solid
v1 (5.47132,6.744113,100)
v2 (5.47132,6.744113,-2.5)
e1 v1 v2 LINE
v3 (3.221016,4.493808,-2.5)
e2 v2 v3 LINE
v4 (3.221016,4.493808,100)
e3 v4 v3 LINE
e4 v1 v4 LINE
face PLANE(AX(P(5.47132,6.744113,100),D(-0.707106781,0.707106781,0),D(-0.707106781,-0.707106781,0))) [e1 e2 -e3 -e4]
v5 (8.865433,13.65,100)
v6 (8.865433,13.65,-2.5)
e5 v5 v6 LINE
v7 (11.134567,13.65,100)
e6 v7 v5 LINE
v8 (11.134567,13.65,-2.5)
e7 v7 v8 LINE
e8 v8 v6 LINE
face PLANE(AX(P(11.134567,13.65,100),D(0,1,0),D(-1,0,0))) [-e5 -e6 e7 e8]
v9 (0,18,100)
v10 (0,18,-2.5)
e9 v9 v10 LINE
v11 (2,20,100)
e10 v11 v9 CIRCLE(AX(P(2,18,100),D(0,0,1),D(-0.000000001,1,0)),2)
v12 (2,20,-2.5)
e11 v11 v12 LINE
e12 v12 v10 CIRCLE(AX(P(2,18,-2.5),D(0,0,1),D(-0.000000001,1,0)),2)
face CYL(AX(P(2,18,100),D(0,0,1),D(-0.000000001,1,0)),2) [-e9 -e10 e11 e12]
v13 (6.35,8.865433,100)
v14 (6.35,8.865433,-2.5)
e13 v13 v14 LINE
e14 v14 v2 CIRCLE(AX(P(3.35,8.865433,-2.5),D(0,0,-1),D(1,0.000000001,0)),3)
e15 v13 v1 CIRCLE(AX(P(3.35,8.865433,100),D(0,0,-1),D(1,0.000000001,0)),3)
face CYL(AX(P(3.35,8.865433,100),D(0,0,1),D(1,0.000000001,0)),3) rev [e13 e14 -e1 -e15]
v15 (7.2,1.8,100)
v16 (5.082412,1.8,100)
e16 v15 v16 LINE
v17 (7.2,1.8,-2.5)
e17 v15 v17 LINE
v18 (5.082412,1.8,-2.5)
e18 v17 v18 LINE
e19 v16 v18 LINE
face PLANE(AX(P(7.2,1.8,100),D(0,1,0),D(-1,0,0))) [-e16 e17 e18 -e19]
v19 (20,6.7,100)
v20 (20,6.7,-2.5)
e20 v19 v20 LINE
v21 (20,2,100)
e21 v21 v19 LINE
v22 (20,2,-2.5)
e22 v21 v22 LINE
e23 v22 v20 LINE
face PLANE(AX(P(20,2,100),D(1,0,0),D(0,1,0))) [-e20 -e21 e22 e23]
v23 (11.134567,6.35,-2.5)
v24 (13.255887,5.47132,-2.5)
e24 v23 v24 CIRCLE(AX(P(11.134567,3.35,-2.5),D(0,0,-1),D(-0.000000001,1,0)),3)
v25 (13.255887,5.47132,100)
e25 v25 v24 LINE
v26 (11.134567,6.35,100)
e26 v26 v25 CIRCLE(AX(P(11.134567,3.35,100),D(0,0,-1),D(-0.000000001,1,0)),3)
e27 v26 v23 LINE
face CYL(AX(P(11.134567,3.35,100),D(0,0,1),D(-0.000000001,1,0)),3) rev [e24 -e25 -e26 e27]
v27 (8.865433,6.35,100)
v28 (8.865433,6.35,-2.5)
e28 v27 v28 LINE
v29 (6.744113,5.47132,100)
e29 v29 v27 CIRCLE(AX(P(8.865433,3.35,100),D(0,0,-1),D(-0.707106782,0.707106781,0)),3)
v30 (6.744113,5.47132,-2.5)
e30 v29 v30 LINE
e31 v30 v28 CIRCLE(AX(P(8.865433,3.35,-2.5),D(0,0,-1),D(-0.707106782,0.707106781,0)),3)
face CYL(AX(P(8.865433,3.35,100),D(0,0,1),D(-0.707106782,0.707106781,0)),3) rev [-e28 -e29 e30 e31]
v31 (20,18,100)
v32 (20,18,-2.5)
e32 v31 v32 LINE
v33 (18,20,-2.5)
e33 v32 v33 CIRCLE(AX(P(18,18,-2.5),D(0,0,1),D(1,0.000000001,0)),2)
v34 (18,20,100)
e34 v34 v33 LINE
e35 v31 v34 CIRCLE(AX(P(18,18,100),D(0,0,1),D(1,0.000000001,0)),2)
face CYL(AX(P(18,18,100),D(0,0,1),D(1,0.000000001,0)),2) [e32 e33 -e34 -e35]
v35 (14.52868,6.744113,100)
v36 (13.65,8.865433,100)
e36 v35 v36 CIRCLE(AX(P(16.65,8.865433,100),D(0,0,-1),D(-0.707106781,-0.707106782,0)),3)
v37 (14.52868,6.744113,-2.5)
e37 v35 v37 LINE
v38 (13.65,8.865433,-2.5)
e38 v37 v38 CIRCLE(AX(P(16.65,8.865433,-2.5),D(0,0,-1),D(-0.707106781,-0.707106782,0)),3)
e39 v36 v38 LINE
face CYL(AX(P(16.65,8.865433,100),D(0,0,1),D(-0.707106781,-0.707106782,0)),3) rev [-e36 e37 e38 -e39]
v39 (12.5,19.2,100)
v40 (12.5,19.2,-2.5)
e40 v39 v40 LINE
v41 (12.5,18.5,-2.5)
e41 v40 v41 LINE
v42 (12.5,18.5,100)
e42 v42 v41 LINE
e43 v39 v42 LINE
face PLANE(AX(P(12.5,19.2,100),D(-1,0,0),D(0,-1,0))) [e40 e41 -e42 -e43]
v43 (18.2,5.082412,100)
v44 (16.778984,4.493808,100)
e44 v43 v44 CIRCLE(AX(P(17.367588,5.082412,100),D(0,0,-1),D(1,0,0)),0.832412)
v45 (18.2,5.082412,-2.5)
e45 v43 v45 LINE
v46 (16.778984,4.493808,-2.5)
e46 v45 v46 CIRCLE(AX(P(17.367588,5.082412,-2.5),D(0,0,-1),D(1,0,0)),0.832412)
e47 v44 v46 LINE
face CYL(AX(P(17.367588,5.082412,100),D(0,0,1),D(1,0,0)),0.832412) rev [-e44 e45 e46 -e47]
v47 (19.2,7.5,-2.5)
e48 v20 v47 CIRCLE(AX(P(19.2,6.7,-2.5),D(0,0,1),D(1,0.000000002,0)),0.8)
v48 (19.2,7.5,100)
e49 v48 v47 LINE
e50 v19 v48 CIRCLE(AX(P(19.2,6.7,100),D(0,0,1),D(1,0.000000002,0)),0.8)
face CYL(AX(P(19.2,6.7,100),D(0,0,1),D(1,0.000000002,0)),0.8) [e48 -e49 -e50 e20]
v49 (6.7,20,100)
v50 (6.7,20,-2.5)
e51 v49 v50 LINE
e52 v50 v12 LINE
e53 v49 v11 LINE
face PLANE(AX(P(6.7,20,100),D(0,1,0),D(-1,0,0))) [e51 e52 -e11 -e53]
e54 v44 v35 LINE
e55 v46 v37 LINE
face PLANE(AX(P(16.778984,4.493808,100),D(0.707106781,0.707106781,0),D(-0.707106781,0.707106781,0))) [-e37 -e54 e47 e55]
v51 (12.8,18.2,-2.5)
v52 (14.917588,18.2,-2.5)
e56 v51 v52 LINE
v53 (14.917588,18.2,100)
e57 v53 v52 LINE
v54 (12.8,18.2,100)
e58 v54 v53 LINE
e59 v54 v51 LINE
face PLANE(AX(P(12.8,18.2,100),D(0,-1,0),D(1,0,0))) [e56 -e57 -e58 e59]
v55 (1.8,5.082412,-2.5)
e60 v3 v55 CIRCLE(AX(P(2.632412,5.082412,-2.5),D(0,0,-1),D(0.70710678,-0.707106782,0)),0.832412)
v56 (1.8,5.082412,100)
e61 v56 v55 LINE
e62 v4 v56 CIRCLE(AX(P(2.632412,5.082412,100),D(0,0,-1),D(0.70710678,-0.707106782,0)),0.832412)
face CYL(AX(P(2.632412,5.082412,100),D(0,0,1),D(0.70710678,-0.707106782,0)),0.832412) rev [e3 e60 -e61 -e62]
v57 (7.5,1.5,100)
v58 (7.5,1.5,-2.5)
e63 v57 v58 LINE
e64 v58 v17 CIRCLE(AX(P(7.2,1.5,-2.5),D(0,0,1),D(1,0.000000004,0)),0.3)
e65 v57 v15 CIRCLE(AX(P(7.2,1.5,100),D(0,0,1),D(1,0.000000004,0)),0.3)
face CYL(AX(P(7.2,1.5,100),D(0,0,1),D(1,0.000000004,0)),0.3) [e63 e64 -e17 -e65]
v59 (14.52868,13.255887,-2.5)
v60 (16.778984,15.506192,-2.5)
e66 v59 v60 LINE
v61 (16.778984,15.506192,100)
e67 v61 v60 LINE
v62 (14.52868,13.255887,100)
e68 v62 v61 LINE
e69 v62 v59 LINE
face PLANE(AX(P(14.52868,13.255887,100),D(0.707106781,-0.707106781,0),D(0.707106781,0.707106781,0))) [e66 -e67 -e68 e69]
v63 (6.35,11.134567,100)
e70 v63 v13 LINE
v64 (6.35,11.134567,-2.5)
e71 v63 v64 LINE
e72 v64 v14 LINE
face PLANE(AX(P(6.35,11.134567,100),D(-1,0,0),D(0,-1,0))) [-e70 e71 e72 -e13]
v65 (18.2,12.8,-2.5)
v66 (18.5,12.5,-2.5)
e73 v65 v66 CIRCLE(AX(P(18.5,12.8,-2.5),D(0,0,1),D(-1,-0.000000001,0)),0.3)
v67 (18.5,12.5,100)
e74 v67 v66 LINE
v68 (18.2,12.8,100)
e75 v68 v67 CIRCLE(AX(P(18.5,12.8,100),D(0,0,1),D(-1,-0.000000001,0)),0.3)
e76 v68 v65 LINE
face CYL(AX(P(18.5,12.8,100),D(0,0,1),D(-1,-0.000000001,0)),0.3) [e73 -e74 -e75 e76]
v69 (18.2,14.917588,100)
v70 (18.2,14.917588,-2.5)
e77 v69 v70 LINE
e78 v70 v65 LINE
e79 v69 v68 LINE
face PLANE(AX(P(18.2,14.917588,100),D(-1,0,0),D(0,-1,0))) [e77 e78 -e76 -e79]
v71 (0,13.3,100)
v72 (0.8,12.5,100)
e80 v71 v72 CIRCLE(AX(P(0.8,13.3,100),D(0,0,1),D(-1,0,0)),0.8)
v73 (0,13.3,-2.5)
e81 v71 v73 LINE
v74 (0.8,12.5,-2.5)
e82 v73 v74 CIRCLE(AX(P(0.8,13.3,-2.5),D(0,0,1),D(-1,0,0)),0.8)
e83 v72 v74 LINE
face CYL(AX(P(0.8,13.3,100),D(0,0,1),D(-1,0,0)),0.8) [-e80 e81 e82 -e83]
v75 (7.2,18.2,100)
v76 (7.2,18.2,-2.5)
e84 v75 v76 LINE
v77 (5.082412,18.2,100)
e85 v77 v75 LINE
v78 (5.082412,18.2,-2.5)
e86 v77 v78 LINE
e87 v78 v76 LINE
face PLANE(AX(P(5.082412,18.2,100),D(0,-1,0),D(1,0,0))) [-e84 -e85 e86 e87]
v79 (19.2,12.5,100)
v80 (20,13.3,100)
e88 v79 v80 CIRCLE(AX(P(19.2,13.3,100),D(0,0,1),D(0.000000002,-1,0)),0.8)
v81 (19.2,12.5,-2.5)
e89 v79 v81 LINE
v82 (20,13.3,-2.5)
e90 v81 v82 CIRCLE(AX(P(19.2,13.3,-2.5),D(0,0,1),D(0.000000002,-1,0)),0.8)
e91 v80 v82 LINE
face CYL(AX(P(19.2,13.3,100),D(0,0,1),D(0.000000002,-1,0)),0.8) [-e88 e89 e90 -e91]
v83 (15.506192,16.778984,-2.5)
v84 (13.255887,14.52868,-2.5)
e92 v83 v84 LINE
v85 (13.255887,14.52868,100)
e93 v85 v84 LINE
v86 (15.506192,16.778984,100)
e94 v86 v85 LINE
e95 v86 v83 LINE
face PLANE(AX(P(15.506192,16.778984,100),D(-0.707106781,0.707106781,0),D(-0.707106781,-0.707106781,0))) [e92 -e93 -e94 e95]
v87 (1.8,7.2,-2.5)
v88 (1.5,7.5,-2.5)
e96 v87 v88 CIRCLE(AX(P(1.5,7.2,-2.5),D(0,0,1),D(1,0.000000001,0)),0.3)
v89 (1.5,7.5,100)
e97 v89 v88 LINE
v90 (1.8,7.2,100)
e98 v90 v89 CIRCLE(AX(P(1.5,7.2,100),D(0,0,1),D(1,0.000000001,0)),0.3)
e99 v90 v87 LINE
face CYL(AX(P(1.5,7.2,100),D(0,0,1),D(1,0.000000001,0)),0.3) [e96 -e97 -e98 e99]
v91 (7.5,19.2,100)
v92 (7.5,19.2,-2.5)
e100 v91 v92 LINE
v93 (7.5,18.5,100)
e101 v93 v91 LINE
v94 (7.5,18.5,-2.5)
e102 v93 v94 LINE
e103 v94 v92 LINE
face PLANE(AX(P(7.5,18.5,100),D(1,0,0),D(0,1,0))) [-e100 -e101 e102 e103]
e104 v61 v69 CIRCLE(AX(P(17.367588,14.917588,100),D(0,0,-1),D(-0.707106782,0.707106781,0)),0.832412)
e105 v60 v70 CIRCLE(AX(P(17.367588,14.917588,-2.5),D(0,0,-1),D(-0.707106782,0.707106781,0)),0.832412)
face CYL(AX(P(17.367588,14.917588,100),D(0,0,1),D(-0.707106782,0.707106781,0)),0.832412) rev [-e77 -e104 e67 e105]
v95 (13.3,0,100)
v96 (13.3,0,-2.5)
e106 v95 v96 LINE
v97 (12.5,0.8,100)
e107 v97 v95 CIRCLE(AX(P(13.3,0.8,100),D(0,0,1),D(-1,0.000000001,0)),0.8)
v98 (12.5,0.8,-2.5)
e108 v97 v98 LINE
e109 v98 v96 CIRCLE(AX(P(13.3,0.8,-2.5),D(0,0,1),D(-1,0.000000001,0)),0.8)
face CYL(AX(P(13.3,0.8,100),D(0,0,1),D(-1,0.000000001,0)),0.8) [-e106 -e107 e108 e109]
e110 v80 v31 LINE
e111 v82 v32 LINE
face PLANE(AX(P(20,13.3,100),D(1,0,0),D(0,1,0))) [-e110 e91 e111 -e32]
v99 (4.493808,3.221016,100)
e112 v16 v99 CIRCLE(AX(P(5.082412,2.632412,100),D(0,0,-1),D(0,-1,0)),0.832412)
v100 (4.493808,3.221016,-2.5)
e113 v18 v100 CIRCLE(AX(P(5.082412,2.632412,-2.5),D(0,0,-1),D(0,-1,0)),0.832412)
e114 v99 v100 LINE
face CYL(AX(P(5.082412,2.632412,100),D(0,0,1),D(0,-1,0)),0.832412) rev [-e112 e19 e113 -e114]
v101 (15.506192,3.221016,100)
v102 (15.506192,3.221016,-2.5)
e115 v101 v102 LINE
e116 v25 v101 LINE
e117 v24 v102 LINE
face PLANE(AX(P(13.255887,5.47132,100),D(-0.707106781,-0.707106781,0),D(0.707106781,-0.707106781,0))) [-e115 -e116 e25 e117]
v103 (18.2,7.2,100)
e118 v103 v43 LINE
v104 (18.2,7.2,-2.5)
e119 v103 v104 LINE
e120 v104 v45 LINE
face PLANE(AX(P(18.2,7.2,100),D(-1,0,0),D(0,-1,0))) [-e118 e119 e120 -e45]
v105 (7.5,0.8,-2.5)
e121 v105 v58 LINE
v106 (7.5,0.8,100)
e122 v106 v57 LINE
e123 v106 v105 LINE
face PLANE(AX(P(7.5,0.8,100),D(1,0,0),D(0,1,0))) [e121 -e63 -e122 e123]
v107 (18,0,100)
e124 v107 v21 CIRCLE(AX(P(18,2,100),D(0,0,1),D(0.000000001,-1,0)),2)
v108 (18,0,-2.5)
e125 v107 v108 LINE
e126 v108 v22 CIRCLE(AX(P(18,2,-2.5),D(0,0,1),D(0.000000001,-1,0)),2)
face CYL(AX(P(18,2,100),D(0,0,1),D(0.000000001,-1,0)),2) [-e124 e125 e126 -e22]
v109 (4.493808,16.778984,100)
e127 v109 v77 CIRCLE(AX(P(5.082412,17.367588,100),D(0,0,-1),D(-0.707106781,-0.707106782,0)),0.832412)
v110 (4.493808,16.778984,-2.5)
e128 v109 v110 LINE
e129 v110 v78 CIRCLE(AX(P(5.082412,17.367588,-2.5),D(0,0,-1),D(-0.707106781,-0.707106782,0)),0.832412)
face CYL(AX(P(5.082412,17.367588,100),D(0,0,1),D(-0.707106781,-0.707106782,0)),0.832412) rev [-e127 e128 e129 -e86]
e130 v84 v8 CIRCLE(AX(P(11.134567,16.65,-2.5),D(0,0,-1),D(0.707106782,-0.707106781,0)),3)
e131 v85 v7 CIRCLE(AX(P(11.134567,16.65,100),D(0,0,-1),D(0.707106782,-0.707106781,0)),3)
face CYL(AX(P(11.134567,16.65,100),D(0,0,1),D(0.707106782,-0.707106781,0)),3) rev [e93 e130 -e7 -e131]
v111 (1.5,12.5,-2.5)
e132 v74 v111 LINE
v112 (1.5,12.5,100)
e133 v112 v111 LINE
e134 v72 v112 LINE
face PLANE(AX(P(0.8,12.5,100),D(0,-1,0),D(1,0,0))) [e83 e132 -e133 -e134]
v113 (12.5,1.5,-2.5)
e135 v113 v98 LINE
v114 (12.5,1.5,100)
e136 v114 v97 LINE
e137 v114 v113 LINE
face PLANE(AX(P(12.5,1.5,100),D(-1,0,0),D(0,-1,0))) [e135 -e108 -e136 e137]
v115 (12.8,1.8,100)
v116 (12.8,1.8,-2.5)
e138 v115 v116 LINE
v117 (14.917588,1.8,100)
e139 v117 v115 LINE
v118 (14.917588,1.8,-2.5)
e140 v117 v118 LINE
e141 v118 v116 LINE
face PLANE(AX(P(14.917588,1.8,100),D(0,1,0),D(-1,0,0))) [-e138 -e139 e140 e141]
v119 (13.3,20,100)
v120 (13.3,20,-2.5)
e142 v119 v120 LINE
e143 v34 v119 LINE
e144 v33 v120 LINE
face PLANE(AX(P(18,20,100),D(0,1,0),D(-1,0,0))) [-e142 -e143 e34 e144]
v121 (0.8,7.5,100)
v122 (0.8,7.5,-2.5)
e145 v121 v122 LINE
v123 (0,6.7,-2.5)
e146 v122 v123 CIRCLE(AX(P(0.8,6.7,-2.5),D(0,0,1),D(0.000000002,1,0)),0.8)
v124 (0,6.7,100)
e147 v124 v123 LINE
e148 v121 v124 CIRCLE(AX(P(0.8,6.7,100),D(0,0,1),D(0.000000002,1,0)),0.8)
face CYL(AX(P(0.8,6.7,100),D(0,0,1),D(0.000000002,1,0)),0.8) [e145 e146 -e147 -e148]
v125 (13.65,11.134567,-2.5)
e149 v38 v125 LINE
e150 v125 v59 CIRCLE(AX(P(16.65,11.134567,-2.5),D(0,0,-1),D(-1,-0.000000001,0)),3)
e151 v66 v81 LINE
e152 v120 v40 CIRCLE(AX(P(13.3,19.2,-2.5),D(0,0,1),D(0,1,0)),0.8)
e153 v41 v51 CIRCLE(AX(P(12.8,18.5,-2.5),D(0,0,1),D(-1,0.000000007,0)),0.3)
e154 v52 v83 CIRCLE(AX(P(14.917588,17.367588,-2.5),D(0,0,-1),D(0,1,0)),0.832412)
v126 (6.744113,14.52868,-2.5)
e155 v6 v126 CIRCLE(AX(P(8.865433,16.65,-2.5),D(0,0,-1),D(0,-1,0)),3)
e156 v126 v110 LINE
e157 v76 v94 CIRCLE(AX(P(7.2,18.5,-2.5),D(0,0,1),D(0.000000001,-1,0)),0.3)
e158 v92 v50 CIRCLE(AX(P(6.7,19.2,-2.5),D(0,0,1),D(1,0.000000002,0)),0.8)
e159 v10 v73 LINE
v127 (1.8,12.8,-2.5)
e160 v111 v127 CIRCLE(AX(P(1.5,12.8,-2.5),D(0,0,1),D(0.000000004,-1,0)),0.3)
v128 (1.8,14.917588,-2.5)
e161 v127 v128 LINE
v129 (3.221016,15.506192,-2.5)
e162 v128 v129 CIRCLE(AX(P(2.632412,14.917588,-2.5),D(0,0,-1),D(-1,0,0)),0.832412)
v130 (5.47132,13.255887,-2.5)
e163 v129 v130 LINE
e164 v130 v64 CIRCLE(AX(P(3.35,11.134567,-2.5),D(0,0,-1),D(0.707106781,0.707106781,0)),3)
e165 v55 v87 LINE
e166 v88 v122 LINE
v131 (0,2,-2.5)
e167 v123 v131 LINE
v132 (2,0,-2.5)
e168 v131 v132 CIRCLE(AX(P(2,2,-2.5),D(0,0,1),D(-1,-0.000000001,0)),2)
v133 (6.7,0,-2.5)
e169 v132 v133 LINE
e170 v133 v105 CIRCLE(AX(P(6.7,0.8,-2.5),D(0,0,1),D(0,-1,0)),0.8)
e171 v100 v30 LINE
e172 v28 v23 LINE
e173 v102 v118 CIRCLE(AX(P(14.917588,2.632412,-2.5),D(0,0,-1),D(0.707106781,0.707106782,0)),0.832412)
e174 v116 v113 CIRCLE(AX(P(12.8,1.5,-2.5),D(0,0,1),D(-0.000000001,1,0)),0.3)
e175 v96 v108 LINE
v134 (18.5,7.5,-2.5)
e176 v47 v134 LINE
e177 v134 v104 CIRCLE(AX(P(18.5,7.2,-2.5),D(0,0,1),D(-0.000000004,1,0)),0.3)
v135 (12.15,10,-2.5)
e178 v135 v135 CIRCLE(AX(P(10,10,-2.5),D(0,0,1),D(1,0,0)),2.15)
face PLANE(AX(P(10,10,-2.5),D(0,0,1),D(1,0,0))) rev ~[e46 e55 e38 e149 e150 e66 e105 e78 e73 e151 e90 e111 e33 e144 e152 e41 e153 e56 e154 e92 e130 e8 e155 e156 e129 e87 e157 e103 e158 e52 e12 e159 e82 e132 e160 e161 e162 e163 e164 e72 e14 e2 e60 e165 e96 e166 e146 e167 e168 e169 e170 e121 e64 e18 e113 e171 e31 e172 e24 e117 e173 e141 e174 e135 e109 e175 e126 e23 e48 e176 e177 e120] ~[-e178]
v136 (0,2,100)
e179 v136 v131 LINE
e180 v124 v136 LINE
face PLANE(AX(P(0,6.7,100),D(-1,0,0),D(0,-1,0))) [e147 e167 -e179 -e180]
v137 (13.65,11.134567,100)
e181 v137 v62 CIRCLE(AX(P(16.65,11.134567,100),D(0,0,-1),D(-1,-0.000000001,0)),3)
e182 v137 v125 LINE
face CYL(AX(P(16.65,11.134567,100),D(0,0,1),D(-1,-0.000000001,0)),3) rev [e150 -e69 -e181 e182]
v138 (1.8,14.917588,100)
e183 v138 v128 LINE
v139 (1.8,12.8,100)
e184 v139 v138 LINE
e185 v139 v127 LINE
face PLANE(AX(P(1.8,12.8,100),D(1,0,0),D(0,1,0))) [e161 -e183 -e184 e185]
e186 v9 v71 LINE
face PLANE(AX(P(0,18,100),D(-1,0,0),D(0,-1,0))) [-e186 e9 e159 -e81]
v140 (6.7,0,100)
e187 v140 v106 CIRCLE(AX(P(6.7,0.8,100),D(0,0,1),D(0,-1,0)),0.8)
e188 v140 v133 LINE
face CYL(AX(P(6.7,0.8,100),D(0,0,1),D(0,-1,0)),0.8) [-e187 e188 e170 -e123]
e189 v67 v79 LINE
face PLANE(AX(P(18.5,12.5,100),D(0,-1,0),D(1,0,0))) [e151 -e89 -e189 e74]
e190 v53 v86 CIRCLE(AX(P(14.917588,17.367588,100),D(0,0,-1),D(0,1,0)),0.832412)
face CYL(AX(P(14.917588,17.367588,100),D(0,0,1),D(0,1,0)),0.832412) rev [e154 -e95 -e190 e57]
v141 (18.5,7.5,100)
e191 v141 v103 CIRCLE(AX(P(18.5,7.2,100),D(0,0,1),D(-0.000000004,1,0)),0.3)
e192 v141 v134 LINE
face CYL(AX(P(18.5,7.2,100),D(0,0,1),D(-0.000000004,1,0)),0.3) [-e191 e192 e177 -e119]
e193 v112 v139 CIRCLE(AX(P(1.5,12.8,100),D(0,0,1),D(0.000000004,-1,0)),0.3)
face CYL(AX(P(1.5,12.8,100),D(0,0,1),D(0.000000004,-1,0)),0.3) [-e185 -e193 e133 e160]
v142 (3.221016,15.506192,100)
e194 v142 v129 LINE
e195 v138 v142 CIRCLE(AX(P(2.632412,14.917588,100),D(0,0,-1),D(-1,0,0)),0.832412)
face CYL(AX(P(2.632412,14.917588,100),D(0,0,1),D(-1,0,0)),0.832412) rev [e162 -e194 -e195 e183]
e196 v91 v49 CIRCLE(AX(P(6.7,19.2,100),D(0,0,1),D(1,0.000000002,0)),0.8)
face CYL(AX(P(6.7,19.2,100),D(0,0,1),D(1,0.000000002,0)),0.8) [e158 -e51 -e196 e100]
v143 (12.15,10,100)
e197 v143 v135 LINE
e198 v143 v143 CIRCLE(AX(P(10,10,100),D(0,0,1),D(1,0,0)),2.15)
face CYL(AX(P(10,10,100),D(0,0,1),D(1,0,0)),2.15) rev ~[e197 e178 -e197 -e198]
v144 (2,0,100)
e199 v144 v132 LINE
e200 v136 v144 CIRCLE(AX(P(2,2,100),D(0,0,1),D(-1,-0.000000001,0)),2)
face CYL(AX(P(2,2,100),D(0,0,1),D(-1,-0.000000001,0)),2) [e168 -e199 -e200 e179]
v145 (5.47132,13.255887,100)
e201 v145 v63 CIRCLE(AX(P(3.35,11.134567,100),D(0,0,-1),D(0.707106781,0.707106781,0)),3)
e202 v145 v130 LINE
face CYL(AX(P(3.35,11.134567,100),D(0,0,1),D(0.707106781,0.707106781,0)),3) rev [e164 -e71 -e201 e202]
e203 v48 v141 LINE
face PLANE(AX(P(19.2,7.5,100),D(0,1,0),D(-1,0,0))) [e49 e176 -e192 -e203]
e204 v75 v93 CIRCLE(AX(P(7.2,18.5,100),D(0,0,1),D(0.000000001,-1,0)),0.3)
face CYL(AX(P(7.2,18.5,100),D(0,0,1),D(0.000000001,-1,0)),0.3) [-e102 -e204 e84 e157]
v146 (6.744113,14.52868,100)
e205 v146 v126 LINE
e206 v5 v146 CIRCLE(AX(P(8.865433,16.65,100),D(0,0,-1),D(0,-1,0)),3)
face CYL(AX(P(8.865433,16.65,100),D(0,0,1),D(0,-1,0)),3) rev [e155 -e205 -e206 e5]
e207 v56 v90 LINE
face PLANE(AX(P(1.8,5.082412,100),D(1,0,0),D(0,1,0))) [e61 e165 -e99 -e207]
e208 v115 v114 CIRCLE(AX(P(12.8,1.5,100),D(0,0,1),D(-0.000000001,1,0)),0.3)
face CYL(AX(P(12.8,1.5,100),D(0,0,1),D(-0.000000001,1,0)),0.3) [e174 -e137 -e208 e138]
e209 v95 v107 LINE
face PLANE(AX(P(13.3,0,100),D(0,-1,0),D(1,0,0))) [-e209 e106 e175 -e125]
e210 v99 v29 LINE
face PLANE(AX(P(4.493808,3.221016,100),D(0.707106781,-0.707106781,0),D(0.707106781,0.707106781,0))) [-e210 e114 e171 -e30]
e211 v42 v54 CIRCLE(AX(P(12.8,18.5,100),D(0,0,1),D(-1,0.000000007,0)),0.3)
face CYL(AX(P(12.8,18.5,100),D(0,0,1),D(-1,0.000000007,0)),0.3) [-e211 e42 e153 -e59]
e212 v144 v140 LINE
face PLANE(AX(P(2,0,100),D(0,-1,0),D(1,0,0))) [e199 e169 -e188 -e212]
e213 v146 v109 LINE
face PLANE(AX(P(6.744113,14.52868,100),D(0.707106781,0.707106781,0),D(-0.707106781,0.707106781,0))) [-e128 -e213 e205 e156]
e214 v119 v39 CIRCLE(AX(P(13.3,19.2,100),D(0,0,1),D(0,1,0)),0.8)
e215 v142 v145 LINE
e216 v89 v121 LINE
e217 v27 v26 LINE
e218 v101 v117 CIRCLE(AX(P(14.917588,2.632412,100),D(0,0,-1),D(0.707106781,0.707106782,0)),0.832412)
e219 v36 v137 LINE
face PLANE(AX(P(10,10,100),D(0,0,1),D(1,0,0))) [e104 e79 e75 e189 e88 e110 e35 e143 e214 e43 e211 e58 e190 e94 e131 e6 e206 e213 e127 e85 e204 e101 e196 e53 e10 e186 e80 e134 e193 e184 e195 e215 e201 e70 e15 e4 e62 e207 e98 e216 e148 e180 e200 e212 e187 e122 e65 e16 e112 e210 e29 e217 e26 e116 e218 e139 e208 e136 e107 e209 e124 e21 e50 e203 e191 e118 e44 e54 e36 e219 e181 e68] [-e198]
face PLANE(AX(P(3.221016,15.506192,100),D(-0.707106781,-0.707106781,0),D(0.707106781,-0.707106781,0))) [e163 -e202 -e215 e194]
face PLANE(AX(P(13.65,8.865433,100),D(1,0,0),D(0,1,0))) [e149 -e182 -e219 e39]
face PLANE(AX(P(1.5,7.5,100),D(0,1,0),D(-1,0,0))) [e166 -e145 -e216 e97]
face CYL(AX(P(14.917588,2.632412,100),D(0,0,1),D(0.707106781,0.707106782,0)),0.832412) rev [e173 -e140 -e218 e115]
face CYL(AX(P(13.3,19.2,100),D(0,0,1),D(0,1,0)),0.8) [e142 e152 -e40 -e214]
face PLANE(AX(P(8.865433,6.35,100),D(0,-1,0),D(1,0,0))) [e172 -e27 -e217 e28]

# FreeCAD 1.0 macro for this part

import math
import FreeCAD as App
import Part
import Sketcher
Q = App.Units.Quantity

doc = App.newDocument("Part")
params = doc.addObject("Spreadsheet::Sheet", "Params")
for row, (alias, value) in enumerate([
    ("sketch1_radius", "2 mm"),
    ("sketch1_radius2", "3 mm"),
    ("sketch1_diameter", "4.3 mm"),
    ("sketch1_radius3", "0.8 mm"),
    ("sketch1_radius4", "0.3 mm"),
    ("pad1_length", "102.5 mm"),
], start=1):
    params.set(f"A{row}", alias)
    params.set(f"B{row}", "=" + value)
    params.setAlias(f"B{row}", alias)

body = doc.addObject("PartDesign::Body", "Body")

# Sketch on XY plane
sketch1 = doc.addObject("Sketcher::SketchObject", "Sketch")
body.addObject(sketch1)
sketch1.AttachmentSupport = (doc.XY_Plane, [""])
sketch1.MapMode = "FlatFace"
sketch1.AttachmentOffset = App.Placement(App.Vector(0, 0, 100), App.Rotation())
sketch1.addGeometry(Part.LineSegment(App.Vector(12.5, 1.5, 0), App.Vector(12.5, 0.8, 0)), False)
sketch1.addGeometry(Part.ArcOfCircle(Part.Circle(App.Vector(13.3, 0.8, 0), App.Vector(0, 0, 1), 0.8), math.radians(180), math.radians(270)), False)
sketch1.addGeometry(Part.LineSegment(App.Vector(13.3, 0, 0), App.Vector(18, 0, 0)), False)
sketch1.addGeometry(Part.ArcOfCircle(Part.Circle(App.Vector(18, 2, 0), App.Vector(0, 0, 1), 2), math.radians(-90), math.radians(0)), False)
sketch1.addGeometry(Part.LineSegment(App.Vector(20, 2, 0), App.Vector(20, 6.7, 0)), False)
sketch1.addGeometry(Part.ArcOfCircle(Part.Circle(App.Vector(19.2, 6.7, 0), App.Vector(0, 0, 1), 0.8), math.radians(0), math.radians(90)), False)
sketch1.addGeometry(Part.LineSegment(App.Vector(19.2, 7.5, 0), App.Vector(18.5, 7.5, 0)), False)
sketch1.addGeometry(Part.ArcOfCircle(Part.Circle(App.Vector(18.5, 7.2, 0), App.Vector(0, 0, 1), 0.3), math.radians(90), math.radians(180)), False)
sketch1.addGeometry(Part.LineSegment(App.Vector(18.2, 7.2, 0), App.Vector(18.2, 5.082412, 0)), False)
sketch1.addGeometry(Part.ArcOfCircle(Part.Circle(App.Vector(17.367588, 5.082412, 0), App.Vector(0, 0, 1), 0.832412), math.radians(-135), math.radians(0)), False)
sketch1.addGeometry(Part.LineSegment(App.Vector(16.778984, 4.493808, 0), App.Vector(14.52868, 6.744113, 0)), False)
sketch1.addGeometry(Part.ArcOfCircle(Part.Circle(App.Vector(16.65, 8.865433, 0), App.Vector(0, 0, 1), 3), math.radians(180), math.radians(225)), False)
sketch1.addGeometry(Part.LineSegment(App.Vector(13.65, 8.865433, 0), App.Vector(13.65, 11.134567, 0)), False)
sketch1.addGeometry(Part.ArcOfCircle(Part.Circle(App.Vector(16.65, 11.134567, 0), App.Vector(0, 0, 1), 3), math.radians(135), math.radians(180)), False)
sketch1.addGeometry(Part.LineSegment(App.Vector(14.52868, 13.255887, 0), App.Vector(16.778984, 15.506192, 0)), False)
sketch1.addGeometry(Part.ArcOfCircle(Part.Circle(App.Vector(17.367588, 14.917588, 0), App.Vector(0, 0, 1), 0.832412), math.radians(0), math.radians(135)), False)
sketch1.addGeometry(Part.LineSegment(App.Vector(18.2, 14.917588, 0), App.Vector(18.2, 12.8, 0)), False)
sketch1.addGeometry(Part.ArcOfCircle(Part.Circle(App.Vector(18.5, 12.8, 0), App.Vector(0, 0, 1), 0.3), math.radians(180), math.radians(270)), False)
sketch1.addGeometry(Part.LineSegment(App.Vector(18.5, 12.5, 0), App.Vector(19.2, 12.5, 0)), False)
sketch1.addGeometry(Part.ArcOfCircle(Part.Circle(App.Vector(19.2, 13.3, 0), App.Vector(0, 0, 1), 0.8), math.radians(-90), math.radians(0)), False)
sketch1.addGeometry(Part.LineSegment(App.Vector(20, 13.3, 0), App.Vector(20, 18, 0)), False)
sketch1.addGeometry(Part.ArcOfCircle(Part.Circle(App.Vector(18, 18, 0), App.Vector(0, 0, 1), 2), math.radians(0), math.radians(90)), False)
sketch1.addGeometry(Part.LineSegment(App.Vector(18, 20, 0), App.Vector(13.3, 20, 0)), False)
sketch1.addGeometry(Part.ArcOfCircle(Part.Circle(App.Vector(13.3, 19.2, 0), App.Vector(0, 0, 1), 0.8), math.radians(90), math.radians(180)), False)
sketch1.addGeometry(Part.LineSegment(App.Vector(12.5, 19.2, 0), App.Vector(12.5, 18.5, 0)), False)
sketch1.addGeometry(Part.ArcOfCircle(Part.Circle(App.Vector(12.8, 18.5, 0), App.Vector(0, 0, 1), 0.3), math.radians(180), math.radians(270)), False)
sketch1.addGeometry(Part.LineSegment(App.Vector(12.8, 18.2, 0), App.Vector(14.917588, 18.2, 0)), False)
sketch1.addGeometry(Part.ArcOfCircle(Part.Circle(App.Vector(14.917588, 17.367588, 0), App.Vector(0, 0, 1), 0.832412), math.radians(-45), math.radians(90)), False)
sketch1.addGeometry(Part.LineSegment(App.Vector(15.506192, 16.778984, 0), App.Vector(13.255887, 14.52868, 0)), False)
sketch1.addGeometry(Part.ArcOfCircle(Part.Circle(App.Vector(11.134567, 16.65, 0), App.Vector(0, 0, 1), 3), math.radians(-90), math.radians(-45)), False)
sketch1.addGeometry(Part.LineSegment(App.Vector(11.134567, 13.65, 0), App.Vector(8.865433, 13.65, 0)), False)
sketch1.addGeometry(Part.ArcOfCircle(Part.Circle(App.Vector(8.865433, 16.65, 0), App.Vector(0, 0, 1), 3), math.radians(-135), math.radians(-90)), False)
sketch1.addGeometry(Part.LineSegment(App.Vector(6.744113, 14.52868, 0), App.Vector(4.493808, 16.778984, 0)), False)
sketch1.addGeometry(Part.ArcOfCircle(Part.Circle(App.Vector(5.082412, 17.367588, 0), App.Vector(0, 0, 1), 0.832412), math.radians(90), math.radians(225)), False)
sketch1.addGeometry(Part.LineSegment(App.Vector(5.082412, 18.2, 0), App.Vector(7.2, 18.2, 0)), False)
sketch1.addGeometry(Part.ArcOfCircle(Part.Circle(App.Vector(7.2, 18.5, 0), App.Vector(0, 0, 1), 0.3), math.radians(-90), math.radians(0)), False)
sketch1.addGeometry(Part.LineSegment(App.Vector(7.5, 18.5, 0), App.Vector(7.5, 19.2, 0)), False)
sketch1.addGeometry(Part.ArcOfCircle(Part.Circle(App.Vector(6.7, 19.2, 0), App.Vector(0, 0, 1), 0.8), math.radians(0), math.radians(90)), False)
sketch1.addGeometry(Part.LineSegment(App.Vector(6.7, 20, 0), App.Vector(2, 20, 0)), False)
sketch1.addGeometry(Part.ArcOfCircle(Part.Circle(App.Vector(2, 18, 0), App.Vector(0, 0, 1), 2), math.radians(90), math.radians(180)), False)
sketch1.addGeometry(Part.LineSegment(App.Vector(0, 18, 0), App.Vector(0, 13.3, 0)), False)
sketch1.addGeometry(Part.ArcOfCircle(Part.Circle(App.Vector(0.8, 13.3, 0), App.Vector(0, 0, 1), 0.8), math.radians(180), math.radians(270)), False)
sketch1.addGeometry(Part.LineSegment(App.Vector(0.8, 12.5, 0), App.Vector(1.5, 12.5, 0)), False)
sketch1.addGeometry(Part.ArcOfCircle(Part.Circle(App.Vector(1.5, 12.8, 0), App.Vector(0, 0, 1), 0.3), math.radians(-90), math.radians(0)), False)
sketch1.addGeometry(Part.LineSegment(App.Vector(1.8, 12.8, 0), App.Vector(1.8, 14.917588, 0)), False)
sketch1.addGeometry(Part.ArcOfCircle(Part.Circle(App.Vector(2.632412, 14.917588, 0), App.Vector(0, 0, 1), 0.832412), math.radians(45), math.radians(180)), False)
sketch1.addGeometry(Part.LineSegment(App.Vector(3.221016, 15.506192, 0), App.Vector(5.47132, 13.255887, 0)), False)
sketch1.addGeometry(Part.ArcOfCircle(Part.Circle(App.Vector(3.35, 11.134567, 0), App.Vector(0, 0, 1), 3), math.radians(0), math.radians(45)), False)
sketch1.addGeometry(Part.LineSegment(App.Vector(6.35, 11.134567, 0), App.Vector(6.35, 8.865433, 0)), False)
sketch1.addGeometry(Part.ArcOfCircle(Part.Circle(App.Vector(3.35, 8.865433, 0), App.Vector(0, 0, 1), 3), math.radians(-45), math.radians(0)), False)
sketch1.addGeometry(Part.LineSegment(App.Vector(5.47132, 6.744113, 0), App.Vector(3.221016, 4.493808, 0)), False)
sketch1.addGeometry(Part.ArcOfCircle(Part.Circle(App.Vector(2.632412, 5.082412, 0), App.Vector(0, 0, 1), 0.832412), math.radians(-180), math.radians(-45)), False)
sketch1.addGeometry(Part.LineSegment(App.Vector(1.8, 5.082412, 0), App.Vector(1.8, 7.2, 0)), False)
sketch1.addGeometry(Part.ArcOfCircle(Part.Circle(App.Vector(1.5, 7.2, 0), App.Vector(0, 0, 1), 0.3), math.radians(0), math.radians(90)), False)
sketch1.addGeometry(Part.LineSegment(App.Vector(1.5, 7.5, 0), App.Vector(0.8, 7.5, 0)), False)
sketch1.addGeometry(Part.ArcOfCircle(Part.Circle(App.Vector(0.8, 6.7, 0), App.Vector(0, 0, 1), 0.8), math.radians(90), math.radians(180)), False)
sketch1.addGeometry(Part.LineSegment(App.Vector(0, 6.7, 0), App.Vector(0, 2, 0)), False)
sketch1.addGeometry(Part.ArcOfCircle(Part.Circle(App.Vector(2, 2, 0), App.Vector(0, 0, 1), 2), math.radians(-180), math.radians(-90)), False)
sketch1.addGeometry(Part.LineSegment(App.Vector(2, 0, 0), App.Vector(6.7, 0, 0)), False)
sketch1.addGeometry(Part.ArcOfCircle(Part.Circle(App.Vector(6.7, 0.8, 0), App.Vector(0, 0, 1), 0.8), math.radians(-90), math.radians(0)), False)
sketch1.addGeometry(Part.LineSegment(App.Vector(7.5, 0.8, 0), App.Vector(7.5, 1.5, 0)), False)
sketch1.addGeometry(Part.ArcOfCircle(Part.Circle(App.Vector(7.2, 1.5, 0), App.Vector(0, 0, 1), 0.3), math.radians(0), math.radians(90)), False)
sketch1.addGeometry(Part.LineSegment(App.Vector(7.2, 1.8, 0), App.Vector(5.082412, 1.8, 0)), False)
sketch1.addGeometry(Part.ArcOfCircle(Part.Circle(App.Vector(5.082412, 2.632412, 0), App.Vector(0, 0, 1), 0.832412), math.radians(135), math.radians(270)), False)
sketch1.addGeometry(Part.LineSegment(App.Vector(4.493808, 3.221016, 0), App.Vector(6.744113, 5.47132, 0)), False)
sketch1.addGeometry(Part.ArcOfCircle(Part.Circle(App.Vector(8.865433, 3.35, 0), App.Vector(0, 0, 1), 3), math.radians(90), math.radians(135)), False)
sketch1.addGeometry(Part.LineSegment(App.Vector(8.865433, 6.35, 0), App.Vector(11.134567, 6.35, 0)), False)
sketch1.addGeometry(Part.ArcOfCircle(Part.Circle(App.Vector(11.134567, 3.35, 0), App.Vector(0, 0, 1), 3), math.radians(45), math.radians(90)), False)
sketch1.addGeometry(Part.LineSegment(App.Vector(13.255887, 5.47132, 0), App.Vector(15.506192, 3.221016, 0)), False)
sketch1.addGeometry(Part.ArcOfCircle(Part.Circle(App.Vector(14.917588, 2.632412, 0), App.Vector(0, 0, 1), 0.832412), math.radians(-90), math.radians(45)), False)
sketch1.addGeometry(Part.LineSegment(App.Vector(14.917588, 1.8, 0), App.Vector(12.8, 1.8, 0)), False)
sketch1.addGeometry(Part.ArcOfCircle(Part.Circle(App.Vector(12.8, 1.5, 0), App.Vector(0, 0, 1), 0.3), math.radians(90), math.radians(180)), False)
sketch1.addGeometry(Part.Circle(App.Vector(10, 10, 0), App.Vector(0, 0, 1), 2.15), False)
sketch1.addConstraint(Sketcher.Constraint("Tangent", 0, 2, 1, 1))
sketch1.addConstraint(Sketcher.Constraint("Tangent", 1, 2, 2, 1))
sketch1.addConstraint(Sketcher.Constraint("Tangent", 2, 2, 3, 1))
sketch1.addConstraint(Sketcher.Constraint("Tangent", 3, 2, 4, 1))
sketch1.addConstraint(Sketcher.Constraint("Tangent", 4, 2, 5, 1))
sketch1.addConstraint(Sketcher.Constraint("Tangent", 5, 2, 6, 1))
sketch1.addConstraint(Sketcher.Constraint("Tangent", 6, 2, 7, 1))
sketch1.addConstraint(Sketcher.Constraint("Tangent", 7, 2, 8, 1))
sketch1.addConstraint(Sketcher.Constraint("Tangent", 8, 2, 9, 2))
sketch1.addConstraint(Sketcher.Constraint("Tangent", 9, 1, 10, 1))
sketch1.addConstraint(Sketcher.Constraint("Tangent", 10, 2, 11, 2))
sketch1.addConstraint(Sketcher.Constraint("Tangent", 11, 1, 12, 1))
sketch1.addConstraint(Sketcher.Constraint("Tangent", 12, 2, 13, 2))
sketch1.addConstraint(Sketcher.Constraint("Tangent", 13, 1, 14, 1))
sketch1.addConstraint(Sketcher.Constraint("Tangent", 14, 2, 15, 2))
sketch1.addConstraint(Sketcher.Constraint("Tangent", 15, 1, 16, 1))
sketch1.addConstraint(Sketcher.Constraint("Tangent", 16, 2, 17, 1))
sketch1.addConstraint(Sketcher.Constraint("Tangent", 17, 2, 18, 1))
sketch1.addConstraint(Sketcher.Constraint("Tangent", 18, 2, 19, 1))
sketch1.addConstraint(Sketcher.Constraint("Tangent", 19, 2, 20, 1))
sketch1.addConstraint(Sketcher.Constraint("Tangent", 20, 2, 21, 1))
sketch1.addConstraint(Sketcher.Constraint("Tangent", 21, 2, 22, 1))
sketch1.addConstraint(Sketcher.Constraint("Tangent", 22, 2, 23, 1))
sketch1.addConstraint(Sketcher.Constraint("Tangent", 23, 2, 24, 1))
sketch1.addConstraint(Sketcher.Constraint("Tangent", 24, 2, 25, 1))
sketch1.addConstraint(Sketcher.Constraint("Tangent", 25, 2, 26, 1))
sketch1.addConstraint(Sketcher.Constraint("Tangent", 26, 2, 27, 2))
sketch1.addConstraint(Sketcher.Constraint("Tangent", 27, 1, 28, 1))
sketch1.addConstraint(Sketcher.Constraint("Tangent", 28, 2, 29, 2))
sketch1.addConstraint(Sketcher.Constraint("Tangent", 29, 1, 30, 1))
sketch1.addConstraint(Sketcher.Constraint("Tangent", 30, 2, 31, 2))
sketch1.addConstraint(Sketcher.Constraint("Tangent", 31, 1, 32, 1))
sketch1.addConstraint(Sketcher.Constraint("Tangent", 32, 2, 33, 2))
sketch1.addConstraint(Sketcher.Constraint("Tangent", 33, 1, 34, 1))
sketch1.addConstraint(Sketcher.Constraint("Tangent", 34, 2, 35, 1))
sketch1.addConstraint(Sketcher.Constraint("Tangent", 35, 2, 36, 1))
sketch1.addConstraint(Sketcher.Constraint("Tangent", 36, 2, 37, 1))
sketch1.addConstraint(Sketcher.Constraint("Tangent", 37, 2, 38, 1))
sketch1.addConstraint(Sketcher.Constraint("Tangent", 38, 2, 39, 1))
sketch1.addConstraint(Sketcher.Constraint("Tangent", 39, 2, 40, 1))
sketch1.addConstraint(Sketcher.Constraint("Tangent", 40, 2, 41, 1))
sketch1.addConstraint(Sketcher.Constraint("Tangent", 41, 2, 42, 1))
sketch1.addConstraint(Sketcher.Constraint("Tangent", 42, 2, 43, 1))
sketch1.addConstraint(Sketcher.Constraint("Tangent", 43, 2, 44, 1))
sketch1.addConstraint(Sketcher.Constraint("Tangent", 44, 2, 45, 2))
sketch1.addConstraint(Sketcher.Constraint("Tangent", 45, 1, 46, 1))
sketch1.addConstraint(Sketcher.Constraint("Tangent", 46, 2, 47, 2))
sketch1.addConstraint(Sketcher.Constraint("Tangent", 47, 1, 48, 1))
sketch1.addConstraint(Sketcher.Constraint("Tangent", 48, 2, 49, 2))
sketch1.addConstraint(Sketcher.Constraint("Tangent", 49, 1, 50, 1))
sketch1.addConstraint(Sketcher.Constraint("Tangent", 50, 2, 51, 2))
sketch1.addConstraint(Sketcher.Constraint("Tangent", 51, 1, 52, 1))
sketch1.addConstraint(Sketcher.Constraint("Tangent", 52, 2, 53, 1))
sketch1.addConstraint(Sketcher.Constraint("Tangent", 53, 2, 54, 1))
sketch1.addConstraint(Sketcher.Constraint("Tangent", 54, 2, 55, 1))
sketch1.addConstraint(Sketcher.Constraint("Tangent", 55, 2, 56, 1))
sketch1.addConstraint(Sketcher.Constraint("Tangent", 56, 2, 57, 1))
sketch1.addConstraint(Sketcher.Constraint("Tangent", 57, 2, 58, 1))
sketch1.addConstraint(Sketcher.Constraint("Tangent", 58, 2, 59, 1))
sketch1.addConstraint(Sketcher.Constraint("Tangent", 59, 2, 60, 1))
sketch1.addConstraint(Sketcher.Constraint("Tangent", 60, 2, 61, 1))
sketch1.addConstraint(Sketcher.Constraint("Tangent", 61, 2, 62, 1))
sketch1.addConstraint(Sketcher.Constraint("Tangent", 62, 2, 63, 2))
sketch1.addConstraint(Sketcher.Constraint("Tangent", 63, 1, 64, 1))
sketch1.addConstraint(Sketcher.Constraint("Tangent", 64, 2, 65, 2))
sketch1.addConstraint(Sketcher.Constraint("Tangent", 65, 1, 66, 1))
sketch1.addConstraint(Sketcher.Constraint("Tangent", 66, 2, 67, 2))
sketch1.addConstraint(Sketcher.Constraint("Tangent", 67, 1, 68, 1))
sketch1.addConstraint(Sketcher.Constraint("Tangent", 68, 2, 69, 2))
sketch1.addConstraint(Sketcher.Constraint("Tangent", 69, 1, 70, 1))
sketch1.addConstraint(Sketcher.Constraint("Tangent", 70, 2, 71, 1))
sketch1.addConstraint(Sketcher.Constraint("Tangent", 71, 2, 0, 1))
sketch1.addConstraint(Sketcher.Constraint("Vertical", 0))
sketch1.addConstraint(Sketcher.Constraint("Horizontal", 2))
sketch1.addConstraint(Sketcher.Constraint("Vertical", 4))
sketch1.addConstraint(Sketcher.Constraint("Horizontal", 6))
sketch1.addConstraint(Sketcher.Constraint("Vertical", 8))
sketch1.addConstraint(Sketcher.Constraint("Vertical", 12))
sketch1.addConstraint(Sketcher.Constraint("Vertical", 16))
sketch1.addConstraint(Sketcher.Constraint("Horizontal", 18))
sketch1.addConstraint(Sketcher.Constraint("Vertical", 20))
sketch1.addConstraint(Sketcher.Constraint("Horizontal", 22))
sketch1.addConstraint(Sketcher.Constraint("Vertical", 24))
sketch1.addConstraint(Sketcher.Constraint("Horizontal", 26))
sketch1.addConstraint(Sketcher.Constraint("Horizontal", 30))
sketch1.addConstraint(Sketcher.Constraint("Horizontal", 34))
sketch1.addConstraint(Sketcher.Constraint("Vertical", 36))
sketch1.addConstraint(Sketcher.Constraint("Horizontal", 38))
sketch1.addConstraint(Sketcher.Constraint("Vertical", 40))
sketch1.addConstraint(Sketcher.Constraint("Horizontal", 42))
sketch1.addConstraint(Sketcher.Constraint("Vertical", 44))
sketch1.addConstraint(Sketcher.Constraint("Vertical", 48))
sketch1.addConstraint(Sketcher.Constraint("Vertical", 52))
sketch1.addConstraint(Sketcher.Constraint("Horizontal", 54))
sketch1.addConstraint(Sketcher.Constraint("Vertical", 56))
sketch1.addConstraint(Sketcher.Constraint("Horizontal", 58))
sketch1.addConstraint(Sketcher.Constraint("Vertical", 60))
sketch1.addConstraint(Sketcher.Constraint("Horizontal", 62))
sketch1.addConstraint(Sketcher.Constraint("Horizontal", 66))
sketch1.addConstraint(Sketcher.Constraint("Horizontal", 70))
sketch1.addConstraint(Sketcher.Constraint("Equal", 1, 5))
sketch1.addConstraint(Sketcher.Constraint("Equal", 11, 13))
sketch1.addConstraint(Sketcher.Constraint("Equal", 9, 15))
sketch1.addConstraint(Sketcher.Constraint("Equal", 7, 17))
sketch1.addConstraint(Sketcher.Constraint("Equal", 5, 19))
sketch1.addConstraint(Sketcher.Constraint("Equal", 3, 21))
sketch1.addConstraint(Sketcher.Constraint("Equal", 19, 23))
sketch1.addConstraint(Sketcher.Constraint("Equal", 17, 25))
sketch1.addConstraint(Sketcher.Constraint("Equal", 15, 27))
sketch1.addConstraint(Sketcher.Constraint("Equal", 13, 29))
sketch1.addConstraint(Sketcher.Constraint("Equal", 29, 31))
sketch1.addConstraint(Sketcher.Constraint("Equal", 27, 33))
sketch1.addConstraint(Sketcher.Constraint("Equal", 25, 35))
sketch1.addConstraint(Sketcher.Constraint("Equal", 23, 37))
sketch1.addConstraint(Sketcher.Constraint("Equal", 21, 39))
sketch1.addConstraint(Sketcher.Constraint("Equal", 37, 41))
sketch1.addConstraint(Sketcher.Constraint("Equal", 35, 43))
sketch1.addConstraint(Sketcher.Constraint("Equal", 33, 45))
sketch1.addConstraint(Sketcher.Constraint("Equal", 31, 47))
sketch1.addConstraint(Sketcher.Constraint("Equal", 47, 49))
sketch1.addConstraint(Sketcher.Constraint("Equal", 45, 51))
sketch1.addConstraint(Sketcher.Constraint("Equal", 43, 53))
sketch1.addConstraint(Sketcher.Constraint("Equal", 41, 55))
sketch1.addConstraint(Sketcher.Constraint("Equal", 39, 57))
sketch1.addConstraint(Sketcher.Constraint("Equal", 55, 59))
sketch1.addConstraint(Sketcher.Constraint("Equal", 53, 61))
sketch1.addConstraint(Sketcher.Constraint("Equal", 51, 63))
sketch1.addConstraint(Sketcher.Constraint("Equal", 49, 65))
sketch1.addConstraint(Sketcher.Constraint("Equal", 65, 67))
sketch1.addConstraint(Sketcher.Constraint("Equal", 63, 69))
sketch1.addConstraint(Sketcher.Constraint("Equal", 61, 71))
sketch1.addConstraint(Sketcher.Constraint("PointOnObject", 1, 2, -1))
sketch1.addConstraint(Sketcher.Constraint("PointOnObject", 39, 2, -2))
sketch1.addConstraint(Sketcher.Constraint("PointOnObject", 55, 2, -2))
sketch1.addConstraint(Sketcher.Constraint("PointOnObject", 57, 2, -1))
sketch1.addConstraint(Sketcher.Constraint("Perpendicular", 10, 14))
sketch1.addConstraint(Sketcher.Constraint("Parallel", 14, 28))
sketch1.addConstraint(Sketcher.Constraint("Perpendicular", 28, 32))
sketch1.addConstraint(Sketcher.Constraint("Parallel", 32, 46))
sketch1.addConstraint(Sketcher.Constraint("Perpendicular", 46, 50))
sketch1.addConstraint(Sketcher.Constraint("Parallel", 50, 64))
sketch1.addConstraint(Sketcher.Constraint("Perpendicular", 64, 68))
sketch1.addConstraint(Sketcher.Constraint("Horizontal", 27, 3, 33, 3))
sketch1.addConstraint(Sketcher.Constraint("Horizontal", 23, 3, 37, 3))
sketch1.addConstraint(Sketcher.Constraint("Horizontal", 19, 3, 41, 3))
sketch1.addConstraint(Sketcher.Constraint("Horizontal", 15, 3, 45, 3))
sketch1.addConstraint(Sketcher.Constraint("Horizontal", 13, 3, 47, 3))
sketch1.addConstraint(Sketcher.Constraint("Horizontal", 11, 3, 49, 3))
sketch1.addConstraint(Sketcher.Constraint("Horizontal", 9, 3, 51, 3))
sketch1.addConstraint(Sketcher.Constraint("Horizontal", 7, 3, 53, 3))
sketch1.addConstraint(Sketcher.Constraint("Horizontal", 63, 3, 69, 3))
sketch1.addConstraint(Sketcher.Constraint("Horizontal", 28, 2, 31, 1))
sketch1.addConstraint(Sketcher.Constraint("Vertical", 9, 3, 15, 3))
sketch1.addConstraint(Sketcher.Constraint("Vertical", 5, 3, 19, 3))
sketch1.addConstraint(Sketcher.Constraint("Vertical", 1, 3, 23, 3))
sketch1.addConstraint(Sketcher.Constraint("Vertical", 37, 3, 59, 3))
sketch1.addConstraint(Sketcher.Constraint("Vertical", 33, 3, 63, 3))
sketch1.addConstraint(Sketcher.Constraint("Vertical", 31, 3, 65, 3))
sketch1.addConstraint(Sketcher.Constraint("Vertical", 29, 3, 67, 3))
sketch1.addConstraint(Sketcher.Constraint("Equal", 26, 34))
sketch1.addConstraint(Sketcher.Constraint("Equal", 22, 38))
sketch1.addConstraint(Sketcher.Constraint("Equal", 18, 42))
sketch1.addConstraint(Sketcher.Constraint("Equal", 54, 0))
sketch1.addConstraint(Sketcher.Constraint("Equal", 58, 4))
sketch1.addConstraint(Sketcher.Constraint("Equal", 70, 8))
sketch1.addConstraint(Sketcher.Constraint("Equal", 66, 12))
sketch1.addConstraint(Sketcher.Constraint("Equal", 8, 16))
sketch1.addConstraint(Sketcher.Constraint("Equal", 4, 20))
sketch1.addConstraint(Sketcher.Constraint("Equal", 0, 24))
sketch1.addConstraint(Sketcher.Constraint("Equal", 14, 28))
sketch1.addConstraint(Sketcher.Constraint("Radius", 3, Q("2 mm")))
sketch1.addConstraint(Sketcher.Constraint("Radius", 11, Q("3 mm")))
sketch1.addConstraint(Sketcher.Constraint("Diameter", 72, Q("4.3 mm")))
sketch1.addConstraint(Sketcher.Constraint("Radius", 1, Q("0.8 mm")))
sketch1.addConstraint(Sketcher.Constraint("Radius", 7, Q("0.3 mm")))
sketch1.addConstraint(Sketcher.Constraint("DistanceX", 2, 1, 2, 2, Q("4.7 mm")))
sketch1.addConstraint(Sketcher.Constraint("DistanceX", 6, 2, 6, 1, Q("0.7 mm")))
sketch1.addConstraint(Sketcher.Constraint("DistanceX", -1, 1, 3, 3, Q("18 mm")))
sketch1.addConstraint(Sketcher.Constraint("DistanceX", -1, 1, 72, 3, Q("10 mm")))
sketch1.addConstraint(Sketcher.Constraint("DistanceY", -1, 1, 72, 3, Q("10 mm")))
sketch1.addConstraint(Sketcher.Constraint("DistanceX", -1, 1, 11, 3, Q("16.65 mm")))
sketch1.addConstraint(Sketcher.Constraint("Radius", 9, Q("0.832412 mm")))
sketch1.addConstraint(Sketcher.Constraint("DistanceX", 26, 1, 26, 2, Q("2.117588 mm")))
sketch1.setExpression("Constraints[170]", "Params.sketch1_radius")
sketch1.setExpression("Constraints[171]", "Params.sketch1_radius2")
sketch1.setExpression("Constraints[172]", "Params.sketch1_diameter")
sketch1.setExpression("Constraints[173]", "Params.sketch1_radius3")
sketch1.setExpression("Constraints[174]", "Params.sketch1_radius4")
pad1 = doc.addObject("PartDesign::Pad", "Pad")
body.addObject(pad1)
pad1.Profile = sketch1
pad1.setExpression("Length", "Params.pad1_length")
pad1.Reversed = True

doc.recompute()
